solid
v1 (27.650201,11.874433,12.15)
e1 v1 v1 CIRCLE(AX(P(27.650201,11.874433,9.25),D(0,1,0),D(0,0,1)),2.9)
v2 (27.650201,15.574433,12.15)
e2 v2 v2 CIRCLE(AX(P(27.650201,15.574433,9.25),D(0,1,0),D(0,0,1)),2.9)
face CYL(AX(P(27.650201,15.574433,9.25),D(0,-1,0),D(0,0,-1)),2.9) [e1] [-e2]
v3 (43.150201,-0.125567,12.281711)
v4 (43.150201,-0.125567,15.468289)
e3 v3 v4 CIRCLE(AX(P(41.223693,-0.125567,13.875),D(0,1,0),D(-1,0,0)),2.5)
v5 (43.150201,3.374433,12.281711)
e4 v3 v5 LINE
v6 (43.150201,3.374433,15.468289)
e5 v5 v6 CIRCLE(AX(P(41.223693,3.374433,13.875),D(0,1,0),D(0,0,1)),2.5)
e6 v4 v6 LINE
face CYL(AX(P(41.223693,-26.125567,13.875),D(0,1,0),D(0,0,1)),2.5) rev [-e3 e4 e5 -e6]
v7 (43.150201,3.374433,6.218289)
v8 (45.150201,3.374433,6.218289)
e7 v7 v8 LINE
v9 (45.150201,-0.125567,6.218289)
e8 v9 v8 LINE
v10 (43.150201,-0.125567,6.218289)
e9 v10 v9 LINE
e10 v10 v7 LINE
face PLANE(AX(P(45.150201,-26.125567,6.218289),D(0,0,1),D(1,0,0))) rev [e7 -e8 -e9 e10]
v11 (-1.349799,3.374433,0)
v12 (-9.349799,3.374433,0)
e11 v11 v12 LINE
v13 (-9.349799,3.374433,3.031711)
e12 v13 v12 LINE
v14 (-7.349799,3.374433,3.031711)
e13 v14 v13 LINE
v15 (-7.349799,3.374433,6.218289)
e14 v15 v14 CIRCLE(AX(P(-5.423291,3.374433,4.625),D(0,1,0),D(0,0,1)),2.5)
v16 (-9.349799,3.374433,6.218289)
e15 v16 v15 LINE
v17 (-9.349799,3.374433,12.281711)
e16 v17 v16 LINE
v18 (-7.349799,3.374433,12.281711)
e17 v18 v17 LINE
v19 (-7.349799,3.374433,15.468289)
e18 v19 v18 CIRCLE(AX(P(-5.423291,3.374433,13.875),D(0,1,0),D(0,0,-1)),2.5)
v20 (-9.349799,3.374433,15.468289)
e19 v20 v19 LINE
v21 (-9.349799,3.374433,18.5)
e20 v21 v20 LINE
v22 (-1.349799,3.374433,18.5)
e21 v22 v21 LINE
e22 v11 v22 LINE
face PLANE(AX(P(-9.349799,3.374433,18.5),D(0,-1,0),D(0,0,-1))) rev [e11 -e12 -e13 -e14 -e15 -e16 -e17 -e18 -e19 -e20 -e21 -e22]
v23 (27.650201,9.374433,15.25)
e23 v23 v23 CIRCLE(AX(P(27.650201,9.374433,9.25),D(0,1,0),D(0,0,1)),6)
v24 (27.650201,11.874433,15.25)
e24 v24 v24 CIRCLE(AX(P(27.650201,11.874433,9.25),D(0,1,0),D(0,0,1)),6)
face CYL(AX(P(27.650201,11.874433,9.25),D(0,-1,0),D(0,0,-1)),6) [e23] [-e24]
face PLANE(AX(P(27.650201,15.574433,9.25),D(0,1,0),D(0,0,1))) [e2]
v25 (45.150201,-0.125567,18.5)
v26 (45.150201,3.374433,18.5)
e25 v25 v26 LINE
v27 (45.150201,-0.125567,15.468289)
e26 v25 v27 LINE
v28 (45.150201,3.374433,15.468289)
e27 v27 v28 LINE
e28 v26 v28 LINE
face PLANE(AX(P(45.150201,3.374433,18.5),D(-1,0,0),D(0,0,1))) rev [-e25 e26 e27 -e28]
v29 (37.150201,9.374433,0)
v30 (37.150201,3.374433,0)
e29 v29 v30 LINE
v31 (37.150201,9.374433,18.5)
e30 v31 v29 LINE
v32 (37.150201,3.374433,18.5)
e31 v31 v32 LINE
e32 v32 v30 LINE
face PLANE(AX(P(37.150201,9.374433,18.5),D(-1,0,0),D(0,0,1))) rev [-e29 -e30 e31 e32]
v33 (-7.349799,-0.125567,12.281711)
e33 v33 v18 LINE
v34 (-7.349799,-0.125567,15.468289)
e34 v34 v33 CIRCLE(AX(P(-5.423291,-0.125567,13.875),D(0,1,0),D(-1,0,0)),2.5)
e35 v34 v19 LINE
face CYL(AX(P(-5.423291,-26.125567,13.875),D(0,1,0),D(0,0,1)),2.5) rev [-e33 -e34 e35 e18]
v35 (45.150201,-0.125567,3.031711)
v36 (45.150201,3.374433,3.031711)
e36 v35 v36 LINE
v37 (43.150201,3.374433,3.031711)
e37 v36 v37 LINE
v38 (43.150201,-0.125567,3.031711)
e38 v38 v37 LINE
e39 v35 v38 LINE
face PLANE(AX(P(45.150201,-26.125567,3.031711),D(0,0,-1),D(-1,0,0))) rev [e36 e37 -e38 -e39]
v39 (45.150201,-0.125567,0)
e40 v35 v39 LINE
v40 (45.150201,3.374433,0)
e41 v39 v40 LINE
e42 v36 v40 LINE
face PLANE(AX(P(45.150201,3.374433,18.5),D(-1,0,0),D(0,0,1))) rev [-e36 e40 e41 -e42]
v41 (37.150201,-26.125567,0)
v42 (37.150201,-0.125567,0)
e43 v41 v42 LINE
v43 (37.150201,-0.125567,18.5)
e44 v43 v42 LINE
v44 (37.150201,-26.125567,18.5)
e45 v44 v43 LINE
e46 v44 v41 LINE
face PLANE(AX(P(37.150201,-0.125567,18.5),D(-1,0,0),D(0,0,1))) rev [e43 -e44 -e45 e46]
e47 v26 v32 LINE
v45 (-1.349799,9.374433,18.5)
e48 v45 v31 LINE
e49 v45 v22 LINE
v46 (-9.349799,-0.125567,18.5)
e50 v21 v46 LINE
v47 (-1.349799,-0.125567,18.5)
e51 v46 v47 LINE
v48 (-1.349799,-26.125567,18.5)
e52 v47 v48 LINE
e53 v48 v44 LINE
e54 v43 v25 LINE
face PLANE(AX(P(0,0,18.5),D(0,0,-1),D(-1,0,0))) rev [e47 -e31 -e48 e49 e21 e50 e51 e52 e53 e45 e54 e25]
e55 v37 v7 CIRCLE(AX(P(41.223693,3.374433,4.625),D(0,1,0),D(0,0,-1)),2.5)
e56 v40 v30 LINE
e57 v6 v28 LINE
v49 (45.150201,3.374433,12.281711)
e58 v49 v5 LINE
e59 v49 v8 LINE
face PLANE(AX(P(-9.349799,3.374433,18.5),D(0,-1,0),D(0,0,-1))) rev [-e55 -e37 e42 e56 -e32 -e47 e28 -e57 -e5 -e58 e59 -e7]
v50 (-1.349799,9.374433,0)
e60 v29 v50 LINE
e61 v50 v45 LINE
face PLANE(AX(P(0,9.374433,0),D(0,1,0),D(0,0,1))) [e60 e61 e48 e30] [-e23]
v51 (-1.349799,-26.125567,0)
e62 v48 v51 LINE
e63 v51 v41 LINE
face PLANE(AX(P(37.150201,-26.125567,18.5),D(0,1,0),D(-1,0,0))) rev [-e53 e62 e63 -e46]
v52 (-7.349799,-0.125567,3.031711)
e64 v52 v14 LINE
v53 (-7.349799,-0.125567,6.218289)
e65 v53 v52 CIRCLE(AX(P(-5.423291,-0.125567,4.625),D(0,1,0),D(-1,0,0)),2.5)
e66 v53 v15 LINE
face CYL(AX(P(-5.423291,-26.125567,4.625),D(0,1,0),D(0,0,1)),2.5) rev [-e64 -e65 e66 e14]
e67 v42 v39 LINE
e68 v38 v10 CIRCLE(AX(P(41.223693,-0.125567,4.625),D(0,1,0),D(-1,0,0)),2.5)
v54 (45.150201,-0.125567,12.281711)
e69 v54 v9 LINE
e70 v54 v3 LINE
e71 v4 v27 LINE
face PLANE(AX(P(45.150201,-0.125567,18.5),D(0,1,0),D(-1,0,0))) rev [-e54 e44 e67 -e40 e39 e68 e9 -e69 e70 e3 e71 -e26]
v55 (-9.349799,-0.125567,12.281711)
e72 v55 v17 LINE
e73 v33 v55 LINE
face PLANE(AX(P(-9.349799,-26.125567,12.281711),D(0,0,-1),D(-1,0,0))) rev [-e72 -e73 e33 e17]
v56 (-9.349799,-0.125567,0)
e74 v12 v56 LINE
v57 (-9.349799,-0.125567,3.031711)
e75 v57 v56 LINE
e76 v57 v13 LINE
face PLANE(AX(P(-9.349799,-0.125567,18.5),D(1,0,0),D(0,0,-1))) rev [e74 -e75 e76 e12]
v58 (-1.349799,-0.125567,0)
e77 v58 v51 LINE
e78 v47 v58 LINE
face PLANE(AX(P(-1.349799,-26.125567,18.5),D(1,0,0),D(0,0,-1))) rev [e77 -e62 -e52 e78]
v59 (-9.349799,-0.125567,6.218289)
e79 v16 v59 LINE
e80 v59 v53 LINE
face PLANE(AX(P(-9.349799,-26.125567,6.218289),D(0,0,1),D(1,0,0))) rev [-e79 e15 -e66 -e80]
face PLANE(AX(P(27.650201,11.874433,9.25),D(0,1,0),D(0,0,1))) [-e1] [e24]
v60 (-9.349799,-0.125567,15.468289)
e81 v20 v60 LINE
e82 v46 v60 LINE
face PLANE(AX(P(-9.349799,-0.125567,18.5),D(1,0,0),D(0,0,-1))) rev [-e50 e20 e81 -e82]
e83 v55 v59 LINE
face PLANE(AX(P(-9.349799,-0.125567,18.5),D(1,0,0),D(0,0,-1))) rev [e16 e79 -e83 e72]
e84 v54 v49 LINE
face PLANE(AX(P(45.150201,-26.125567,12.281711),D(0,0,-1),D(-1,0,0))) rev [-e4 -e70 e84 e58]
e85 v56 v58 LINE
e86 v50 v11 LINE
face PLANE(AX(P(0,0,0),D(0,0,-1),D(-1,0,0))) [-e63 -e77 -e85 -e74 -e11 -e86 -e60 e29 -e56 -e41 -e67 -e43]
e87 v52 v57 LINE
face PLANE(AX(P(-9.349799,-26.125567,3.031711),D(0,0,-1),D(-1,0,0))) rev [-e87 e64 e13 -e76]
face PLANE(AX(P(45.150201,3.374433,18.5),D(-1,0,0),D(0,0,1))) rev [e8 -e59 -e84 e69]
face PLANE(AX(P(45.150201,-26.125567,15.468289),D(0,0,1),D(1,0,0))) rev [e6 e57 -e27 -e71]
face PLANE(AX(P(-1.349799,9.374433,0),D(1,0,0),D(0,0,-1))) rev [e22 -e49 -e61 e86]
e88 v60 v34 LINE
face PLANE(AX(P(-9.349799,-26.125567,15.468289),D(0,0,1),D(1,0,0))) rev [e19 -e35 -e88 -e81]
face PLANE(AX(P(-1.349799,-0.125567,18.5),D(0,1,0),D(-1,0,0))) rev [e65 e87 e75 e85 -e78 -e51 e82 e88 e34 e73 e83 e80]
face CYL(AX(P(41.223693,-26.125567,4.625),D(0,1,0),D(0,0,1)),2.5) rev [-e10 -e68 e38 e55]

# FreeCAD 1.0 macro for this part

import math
import FreeCAD as App
import Part
import Sketcher
Q = App.Units.Quantity


def add_polygon(sketch, points):
    """Adds a closed chain of lines whose ends are joined by coincident constraints."""
    first, n = sketch.GeometryCount, len(points)
    for a, b in zip(points, points[1:] + points[:1]):
        sketch.addGeometry(Part.LineSegment(App.Vector(*a, 0), App.Vector(*b, 0)), False)
    for i in range(n):
        sketch.addConstraint(Sketcher.Constraint("Coincident", first + i, 2, first + (i + 1) % n, 1))

doc = App.newDocument("Part")
params = doc.addObject("Spreadsheet::Sheet", "Params")
for row, (alias, value) in enumerate([
    ("sketch1_width", "8 mm"),
    ("sketch1_height", "26 mm"),
    ("sketch1_width2", "38.5 mm"),
    ("sketch1_height2", "3.5 mm"),
    ("pad1_length", "18.5 mm"),
    ("sketch2_radius", "2.5 mm"),
    ("sketch2_width", "2 mm"),
    ("sketch3_width", "38.5 mm"),
    ("sketch3_height", "18.5 mm"),
    ("pad2_length", "6 mm"),
    ("sketch4_diameter", "12 mm"),
    ("pad3_length", "2.5 mm"),
    ("sketch5_diameter", "5.8 mm"),
    ("pad4_length", "3.7 mm"),
], start=1):
    params.set(f"A{row}", alias)
    params.set(f"B{row}", "=" + value)
    params.setAlias(f"B{row}", alias)

body = doc.addObject("PartDesign::Body", "Body")

sketch1 = body.newObject("Sketcher::SketchObject", "Sketch")
sketch1.AttachmentSupport = (doc.getObject("XY_Plane"), [""])
sketch1.MapMode = "FlatFace"
add_polygon(sketch1, [(-9.3, 3.4), (-9.3, -0.1), (-1.3, -0.1), (-1.3, -26.1), (37.2, -26.1), (37.2, -0.1), (45.2, -0.1), (45.2, 3.4)])
sketch1.addConstraint(Sketcher.Constraint("Vertical", 0))
sketch1.addConstraint(Sketcher.Constraint("Horizontal", 1))
sketch1.addConstraint(Sketcher.Constraint("Vertical", 2))
sketch1.addConstraint(Sketcher.Constraint("Horizontal", 3))
sketch1.addConstraint(Sketcher.Constraint("Vertical", 4))
sketch1.addConstraint(Sketcher.Constraint("Horizontal", 5))
sketch1.addConstraint(Sketcher.Constraint("Vertical", 6))
sketch1.addConstraint(Sketcher.Constraint("Horizontal", 7))
sketch1.addConstraint(Sketcher.Constraint("Horizontal", 1, 2, 4, 2))
sketch1.addConstraint(Sketcher.Constraint("Equal", 1, 5))
sketch1.addConstraint(Sketcher.Constraint("DistanceX", 1, 1, 1, 2, Q("8 mm")))
sketch1.addConstraint(Sketcher.Constraint("DistanceY", 2, 2, 2, 1, Q("26 mm")))
sketch1.addConstraint(Sketcher.Constraint("DistanceX", 3, 1, 3, 2, Q("38.5 mm")))
sketch1.addConstraint(Sketcher.Constraint("DistanceY", 0, 2, 0, 1, Q("3.5 mm")))
sketch1.addConstraint(Sketcher.Constraint("DistanceX", 0, 2, -1, 1, Q("9.349799 mm")))
sketch1.addConstraint(Sketcher.Constraint("DistanceY", 0, 2, -1, 1, Q("0.125567 mm")))
sketch1.setExpression("Constraints[18]", "Params.sketch1_width")
sketch1.setExpression("Constraints[19]", "Params.sketch1_height")
sketch1.setExpression("Constraints[20]", "Params.sketch1_width2")
sketch1.setExpression("Constraints[21]", "Params.sketch1_height2")
pad1 = body.newObject("PartDesign::Pad", "Pad")
pad1.Profile = sketch1
pad1.setExpression("Length", "Params.pad1_length")

sketch2 = body.newObject("Sketcher::SketchObject", "Sketch001")
sketch2.AttachmentSupport = (doc.getObject("XZ_Plane"), [""])
sketch2.MapMode = "FlatFace"
sketch2.AttachmentOffset = App.Placement(App.Vector(0, 0, -3.374433), App.Rotation())
sketch2.addGeometry(Part.LineSegment(App.Vector(-9.3, 15.5, 0), App.Vector(-7.3, 15.5, 0)), False)
sketch2.addGeometry(Part.ArcOfCircle(Part.Circle(App.Vector(-5.4, 13.9, 0), App.Vector(0, 0, 1), 2.5), math.radians(-140), math.radians(140)), False)
sketch2.addGeometry(Part.LineSegment(App.Vector(-7.3, 12.3, 0), App.Vector(-9.3, 12.3, 0)), False)
sketch2.addGeometry(Part.LineSegment(App.Vector(-9.3, 12.3, 0), App.Vector(-9.3, 15.5, 0)), False)
sketch2.addGeometry(Part.LineSegment(App.Vector(45.2, 12.3, 0), App.Vector(43.2, 12.3, 0)), False)
sketch2.addGeometry(Part.ArcOfCircle(Part.Circle(App.Vector(41.2, 13.9, 0), App.Vector(0, 0, 1), 2.5), math.radians(40), math.radians(320)), False)
sketch2.addGeometry(Part.LineSegment(App.Vector(43.2, 15.5, 0), App.Vector(45.2, 15.5, 0)), False)
sketch2.addGeometry(Part.LineSegment(App.Vector(45.2, 15.5, 0), App.Vector(45.2, 12.3, 0)), False)
sketch2.addGeometry(Part.LineSegment(App.Vector(-9.3, 6.2, 0), App.Vector(-7.3, 6.2, 0)), False)
sketch2.addGeometry(Part.ArcOfCircle(Part.Circle(App.Vector(-5.4, 4.6, 0), App.Vector(0, 0, 1), 2.5), math.radians(-140), math.radians(140)), False)
sketch2.addGeometry(Part.LineSegment(App.Vector(-7.3, 3, 0), App.Vector(-9.3, 3, 0)), False)
sketch2.addGeometry(Part.LineSegment(App.Vector(-9.3, 3, 0), App.Vector(-9.3, 6.2, 0)), False)
sketch2.addGeometry(Part.LineSegment(App.Vector(45.2, 3, 0), App.Vector(43.2, 3, 0)), False)
sketch2.addGeometry(Part.ArcOfCircle(Part.Circle(App.Vector(41.2, 4.6, 0), App.Vector(0, 0, 1), 2.5), math.radians(40), math.radians(320)), False)
sketch2.addGeometry(Part.LineSegment(App.Vector(43.2, 6.2, 0), App.Vector(45.2, 6.2, 0)), False)
sketch2.addGeometry(Part.LineSegment(App.Vector(45.2, 6.2, 0), App.Vector(45.2, 3, 0)), False)
sketch2.addConstraint(Sketcher.Constraint("Coincident", 0, 2, 1, 2))
sketch2.addConstraint(Sketcher.Constraint("Coincident", 1, 1, 2, 1))
sketch2.addConstraint(Sketcher.Constraint("Coincident", 2, 2, 3, 1))
sketch2.addConstraint(Sketcher.Constraint("Coincident", 3, 2, 0, 1))
sketch2.addConstraint(Sketcher.Constraint("Coincident", 4, 2, 5, 2))
sketch2.addConstraint(Sketcher.Constraint("Coincident", 5, 1, 6, 1))
sketch2.addConstraint(Sketcher.Constraint("Coincident", 6, 2, 7, 1))
sketch2.addConstraint(Sketcher.Constraint("Coincident", 7, 2, 4, 1))
sketch2.addConstraint(Sketcher.Constraint("Coincident", 8, 2, 9, 2))
sketch2.addConstraint(Sketcher.Constraint("Coincident", 9, 1, 10, 1))
sketch2.addConstraint(Sketcher.Constraint("Coincident", 10, 2, 11, 1))
sketch2.addConstraint(Sketcher.Constraint("Coincident", 11, 2, 8, 1))
sketch2.addConstraint(Sketcher.Constraint("Coincident", 12, 2, 13, 2))
sketch2.addConstraint(Sketcher.Constraint("Coincident", 13, 1, 14, 1))
sketch2.addConstraint(Sketcher.Constraint("Coincident", 14, 2, 15, 1))
sketch2.addConstraint(Sketcher.Constraint("Coincident", 15, 2, 12, 1))
sketch2.addConstraint(Sketcher.Constraint("Horizontal", 0))
sketch2.addConstraint(Sketcher.Constraint("Horizontal", 2))
sketch2.addConstraint(Sketcher.Constraint("Vertical", 3))
sketch2.addConstraint(Sketcher.Constraint("Horizontal", 4))
sketch2.addConstraint(Sketcher.Constraint("Horizontal", 6))
sketch2.addConstraint(Sketcher.Constraint("Vertical", 7))
sketch2.addConstraint(Sketcher.Constraint("Horizontal", 8))
sketch2.addConstraint(Sketcher.Constraint("Horizontal", 10))
sketch2.addConstraint(Sketcher.Constraint("Vertical", 11))
sketch2.addConstraint(Sketcher.Constraint("Horizontal", 12))
sketch2.addConstraint(Sketcher.Constraint("Horizontal", 14))
sketch2.addConstraint(Sketcher.Constraint("Vertical", 15))
sketch2.addConstraint(Sketcher.Constraint("Equal", 1, 5))
sketch2.addConstraint(Sketcher.Constraint("Equal", 5, 9))
sketch2.addConstraint(Sketcher.Constraint("Equal", 9, 13))
sketch2.addConstraint(Sketcher.Constraint("Horizontal", 1, 3, 5, 3))
sketch2.addConstraint(Sketcher.Constraint("Horizontal", 9, 3, 13, 3))
sketch2.addConstraint(Sketcher.Constraint("Horizontal", 2, 2, 4, 2))
sketch2.addConstraint(Sketcher.Constraint("Horizontal", 3, 2, 5, 1))
sketch2.addConstraint(Sketcher.Constraint("Horizontal", 10, 2, 12, 2))
sketch2.addConstraint(Sketcher.Constraint("Horizontal", 11, 2, 13, 1))
sketch2.addConstraint(Sketcher.Constraint("Vertical", 1, 3, 9, 3))
sketch2.addConstraint(Sketcher.Constraint("Vertical", 5, 3, 13, 3))
sketch2.addConstraint(Sketcher.Constraint("Vertical", 0, 2, 1, 1))
sketch2.addConstraint(Sketcher.Constraint("Vertical", 1, 1, 8, 2))
sketch2.addConstraint(Sketcher.Constraint("Vertical", 8, 2, 9, 1))
sketch2.addConstraint(Sketcher.Constraint("Vertical", 3, 2, 10, 2))
sketch2.addConstraint(Sketcher.Constraint("Vertical", 7, 2, 14, 2))
sketch2.addConstraint(Sketcher.Constraint("Equal", 2, 4))
sketch2.addConstraint(Sketcher.Constraint("Radius", 1, Q("2.5 mm")))
sketch2.addConstraint(Sketcher.Constraint("DistanceX", 0, 1, 0, 2, Q("2 mm")))
sketch2.addConstraint(Sketcher.Constraint("DistanceX", 1, 1, 4, 2, Q("50.5 mm")))
sketch2.addConstraint(Sketcher.Constraint("DistanceY", 9, 3, 1, 3, Q("9.25 mm")))
sketch2.addConstraint(Sketcher.Constraint("DistanceY", -1, 1, 1, 3, Q("13.875 mm")))
sketch2.addConstraint(Sketcher.Constraint("DistanceX", 0, 2, -1, 1, Q("7.349799 mm")))
sketch2.addConstraint(Sketcher.Constraint("DistanceY", 3, 1, 3, 2, Q("3.186577 mm")))
sketch2.setExpression("Constraints[45]", "Params.sketch2_radius")
sketch2.setExpression("Constraints[46]", "Params.sketch2_width")
pocket1 = body.newObject("PartDesign::Pocket", "Pocket")
pocket1.Profile = sketch2
pocket1.Type = "ThroughAll"
pocket1.Reversed = True

sketch3 = body.newObject("Sketcher::SketchObject", "Sketch002")
sketch3.AttachmentSupport = (doc.getObject("XZ_Plane"), [""])
sketch3.MapMode = "FlatFace"
sketch3.AttachmentOffset = App.Placement(App.Vector(0, 0, -3.374433), App.Rotation())
add_polygon(sketch3, [(-1, 0), (-1, 18), (37, 18), (37, 0)])
sketch3.addConstraint(Sketcher.Constraint("Vertical", 0))
sketch3.addConstraint(Sketcher.Constraint("Horizontal", 1))
sketch3.addConstraint(Sketcher.Constraint("Vertical", 2))
sketch3.addConstraint(Sketcher.Constraint("Horizontal", 3))
sketch3.addConstraint(Sketcher.Constraint("PointOnObject", 2, 2, -1))
sketch3.addConstraint(Sketcher.Constraint("DistanceX", 1, 1, 1, 2, Q("38.5 mm")))
sketch3.addConstraint(Sketcher.Constraint("DistanceY", 0, 1, 0, 2, Q("18.5 mm")))
sketch3.addConstraint(Sketcher.Constraint("DistanceX", 0, 2, -1, 1, Q("1.349799 mm")))
sketch3.setExpression("Constraints[9]", "Params.sketch3_width")
sketch3.setExpression("Constraints[10]", "Params.sketch3_height")
pad2 = body.newObject("PartDesign::Pad", "Pad001")
pad2.Profile = sketch3
pad2.setExpression("Length", "Params.pad2_length")
pad2.Reversed = True

sketch4 = body.newObject("Sketcher::SketchObject", "Sketch003")
sketch4.AttachmentSupport = (doc.getObject("XZ_Plane"), [""])
sketch4.MapMode = "FlatFace"
sketch4.AttachmentOffset = App.Placement(App.Vector(0, 0, -9.374433), App.Rotation())
sketch4.addGeometry(Part.Circle(App.Vector(28, 9, 0), App.Vector(0, 0, 1), 6), False)
sketch4.addConstraint(Sketcher.Constraint("Diameter", 0, Q("12 mm")))
sketch4.addConstraint(Sketcher.Constraint("DistanceY", -1, 1, 0, 3, Q("9.25 mm")))
sketch4.addConstraint(Sketcher.Constraint("DistanceX", -1, 1, 0, 3, Q("27.650201 mm")))
sketch4.setExpression("Constraints[0]", "Params.sketch4_diameter")
pad3 = body.newObject("PartDesign::Pad", "Pad002")
pad3.Profile = sketch4
pad3.setExpression("Length", "Params.pad3_length")
pad3.Reversed = True

sketch5 = body.newObject("Sketcher::SketchObject", "Sketch004")
sketch5.AttachmentSupport = (doc.getObject("XZ_Plane"), [""])
sketch5.MapMode = "FlatFace"
sketch5.AttachmentOffset = App.Placement(App.Vector(0, 0, -11.874433), App.Rotation())
sketch5.addGeometry(Part.Circle(App.Vector(27.7, 9.2, 0), App.Vector(0, 0, 1), 2.9), False)
sketch5.addConstraint(Sketcher.Constraint("Diameter", 0, Q("5.8 mm")))
sketch5.addConstraint(Sketcher.Constraint("DistanceY", -1, 1, 0, 3, Q("9.25 mm")))
sketch5.addConstraint(Sketcher.Constraint("DistanceX", -1, 1, 0, 3, Q("27.650201 mm")))
sketch5.setExpression("Constraints[0]", "Params.sketch5_diameter")
pad4 = body.newObject("PartDesign::Pad", "Pad003")
pad4.Profile = sketch5
pad4.setExpression("Length", "Params.pad4_length")
pad4.Reversed = True

doc.recompute()
